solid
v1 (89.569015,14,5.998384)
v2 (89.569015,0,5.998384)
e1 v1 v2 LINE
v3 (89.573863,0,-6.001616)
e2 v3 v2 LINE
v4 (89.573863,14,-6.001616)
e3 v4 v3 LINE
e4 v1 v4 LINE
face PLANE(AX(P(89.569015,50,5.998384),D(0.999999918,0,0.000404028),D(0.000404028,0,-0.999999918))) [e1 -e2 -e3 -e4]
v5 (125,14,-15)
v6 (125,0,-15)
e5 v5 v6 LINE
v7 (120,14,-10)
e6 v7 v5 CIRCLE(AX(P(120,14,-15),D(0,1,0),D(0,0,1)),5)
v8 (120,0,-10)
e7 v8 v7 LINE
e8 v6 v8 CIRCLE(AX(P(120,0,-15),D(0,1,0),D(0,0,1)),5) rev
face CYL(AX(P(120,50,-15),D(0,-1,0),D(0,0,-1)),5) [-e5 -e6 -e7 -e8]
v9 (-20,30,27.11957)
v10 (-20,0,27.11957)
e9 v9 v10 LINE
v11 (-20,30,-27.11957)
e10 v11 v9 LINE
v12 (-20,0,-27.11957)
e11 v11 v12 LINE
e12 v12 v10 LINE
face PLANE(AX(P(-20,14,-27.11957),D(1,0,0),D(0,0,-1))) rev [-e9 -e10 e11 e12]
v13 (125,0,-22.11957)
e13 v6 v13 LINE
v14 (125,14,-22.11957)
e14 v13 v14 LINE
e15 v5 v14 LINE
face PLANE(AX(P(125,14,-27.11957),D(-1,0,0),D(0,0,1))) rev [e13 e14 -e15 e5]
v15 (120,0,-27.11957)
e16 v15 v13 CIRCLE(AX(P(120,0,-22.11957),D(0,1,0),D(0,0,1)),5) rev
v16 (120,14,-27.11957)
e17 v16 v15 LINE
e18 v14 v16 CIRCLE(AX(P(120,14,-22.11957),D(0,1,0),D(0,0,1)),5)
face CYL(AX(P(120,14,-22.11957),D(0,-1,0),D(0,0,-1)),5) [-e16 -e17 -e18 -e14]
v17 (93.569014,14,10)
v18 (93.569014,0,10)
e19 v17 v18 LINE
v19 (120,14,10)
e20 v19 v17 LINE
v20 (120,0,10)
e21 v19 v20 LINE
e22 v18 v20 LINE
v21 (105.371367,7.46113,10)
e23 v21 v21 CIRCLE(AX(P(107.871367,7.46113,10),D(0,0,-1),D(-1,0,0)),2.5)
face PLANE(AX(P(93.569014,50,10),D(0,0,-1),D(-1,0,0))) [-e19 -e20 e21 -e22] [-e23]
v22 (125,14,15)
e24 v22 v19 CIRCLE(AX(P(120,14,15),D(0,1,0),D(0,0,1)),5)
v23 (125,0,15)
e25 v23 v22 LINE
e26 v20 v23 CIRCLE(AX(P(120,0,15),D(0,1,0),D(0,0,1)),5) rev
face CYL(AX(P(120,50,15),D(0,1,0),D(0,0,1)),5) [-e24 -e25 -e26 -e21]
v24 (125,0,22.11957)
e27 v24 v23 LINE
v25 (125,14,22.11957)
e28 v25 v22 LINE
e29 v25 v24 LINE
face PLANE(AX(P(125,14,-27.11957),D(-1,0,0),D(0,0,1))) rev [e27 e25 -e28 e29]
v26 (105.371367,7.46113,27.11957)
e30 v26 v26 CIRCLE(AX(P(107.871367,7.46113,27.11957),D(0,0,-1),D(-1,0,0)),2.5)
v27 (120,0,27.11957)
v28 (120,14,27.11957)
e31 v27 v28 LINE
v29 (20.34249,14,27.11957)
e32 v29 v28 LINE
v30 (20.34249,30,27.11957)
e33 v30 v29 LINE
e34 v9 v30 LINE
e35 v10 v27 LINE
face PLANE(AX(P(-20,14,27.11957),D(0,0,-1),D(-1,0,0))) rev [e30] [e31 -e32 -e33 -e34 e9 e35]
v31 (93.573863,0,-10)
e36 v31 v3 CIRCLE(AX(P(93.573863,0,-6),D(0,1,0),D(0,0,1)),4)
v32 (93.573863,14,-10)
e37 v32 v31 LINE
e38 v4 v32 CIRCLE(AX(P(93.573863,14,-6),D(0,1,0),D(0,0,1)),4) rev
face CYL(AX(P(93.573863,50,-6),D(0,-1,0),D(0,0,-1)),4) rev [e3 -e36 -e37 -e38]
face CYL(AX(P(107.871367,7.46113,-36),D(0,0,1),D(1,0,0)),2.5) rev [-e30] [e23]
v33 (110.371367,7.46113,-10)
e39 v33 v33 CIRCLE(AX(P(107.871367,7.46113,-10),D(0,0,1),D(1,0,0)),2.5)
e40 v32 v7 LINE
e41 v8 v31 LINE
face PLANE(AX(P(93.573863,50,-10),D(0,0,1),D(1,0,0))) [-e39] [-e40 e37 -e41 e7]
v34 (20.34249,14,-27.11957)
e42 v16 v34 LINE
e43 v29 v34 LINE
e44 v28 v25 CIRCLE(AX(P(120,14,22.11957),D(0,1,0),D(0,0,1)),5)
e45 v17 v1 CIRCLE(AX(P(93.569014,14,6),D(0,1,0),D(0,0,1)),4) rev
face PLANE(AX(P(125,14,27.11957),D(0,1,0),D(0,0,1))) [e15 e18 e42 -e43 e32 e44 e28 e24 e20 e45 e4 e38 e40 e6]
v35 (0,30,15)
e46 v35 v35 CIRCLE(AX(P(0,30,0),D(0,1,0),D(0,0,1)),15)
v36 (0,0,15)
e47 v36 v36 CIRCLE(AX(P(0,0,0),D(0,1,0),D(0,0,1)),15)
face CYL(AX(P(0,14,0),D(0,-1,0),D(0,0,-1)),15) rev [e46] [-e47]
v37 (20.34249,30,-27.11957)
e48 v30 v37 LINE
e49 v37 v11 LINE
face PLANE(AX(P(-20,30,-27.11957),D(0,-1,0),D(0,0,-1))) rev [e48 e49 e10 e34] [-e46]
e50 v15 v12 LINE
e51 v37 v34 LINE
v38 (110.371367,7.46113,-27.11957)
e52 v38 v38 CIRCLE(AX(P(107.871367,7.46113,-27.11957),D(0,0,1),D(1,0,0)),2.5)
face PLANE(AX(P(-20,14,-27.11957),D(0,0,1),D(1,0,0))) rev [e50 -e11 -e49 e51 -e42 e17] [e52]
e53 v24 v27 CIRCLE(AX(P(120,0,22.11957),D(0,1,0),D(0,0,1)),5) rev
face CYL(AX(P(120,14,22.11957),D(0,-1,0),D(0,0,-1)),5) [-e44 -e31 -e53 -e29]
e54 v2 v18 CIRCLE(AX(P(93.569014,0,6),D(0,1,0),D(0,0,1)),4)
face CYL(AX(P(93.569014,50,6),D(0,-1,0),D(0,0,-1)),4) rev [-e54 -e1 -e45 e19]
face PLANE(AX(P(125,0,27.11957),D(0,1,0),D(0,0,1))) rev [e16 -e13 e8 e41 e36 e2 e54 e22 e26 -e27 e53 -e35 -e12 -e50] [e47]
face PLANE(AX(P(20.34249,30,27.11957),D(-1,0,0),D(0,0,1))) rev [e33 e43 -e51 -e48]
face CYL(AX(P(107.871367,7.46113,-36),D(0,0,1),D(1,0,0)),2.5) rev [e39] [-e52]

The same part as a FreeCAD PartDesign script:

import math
import FreeCAD as App
import Part
import Sketcher


def edges_at(feature, points):
    """Names of the edges that pass closest to the given points."""
    edges = feature.Shape.Edges
    near = lambda p: min(range(len(edges)), key=lambda i: edges[i].distToShape(Part.Vertex(*p))[0])
    return sorted({f"Edge{near(p) + 1}" for p in points})


def add_polygon(sketch, points):
    """Adds a closed chain of lines whose ends are joined by coincident constraints."""
    first, n = sketch.GeometryCount, len(points)
    for a, b in zip(points, points[1:] + points[:1]):
        sketch.addGeometry(Part.LineSegment(App.Vector(*a, 0), App.Vector(*b, 0)), False)
    for i in range(n):
        sketch.addConstraint(Sketcher.Constraint("Coincident", first + i, 2, first + (i + 1) % n, 1))

doc = App.newDocument("Part")
params = doc.addObject("Spreadsheet::Sheet", "Params")
for row, (alias, value) in enumerate([
    ("sketch1_diameter", "30 mm"),
    ("sketch1_width", "145 mm"),
    ("pad1_length", "14 mm"),
    ("sketch2_radius", "4 mm"),
    ("sketch2_height", "20 mm"),
    ("pocket1_length", "50 mm"),
    ("fillet_radius", "5 mm"),
    ("sketch3_diameter", "5 mm"),
    ("pocket2_length", "72 mm"),
    ("sketch4_diameter", "30 mm"),
    ("pad2_length", "16 mm"),
], start=1):
    params.set(f"A{row}", alias)
    params.set(f"B{row}", "=" + value)
    params.setAlias(f"B{row}", alias)

body = doc.addObject("PartDesign::Body", "Body")

# Sketch on XZ plane
sketch1 = body.newObject("Sketcher::SketchObject", "Sketch")
sketch1.AttachmentSupport = (doc.getObject("XZ_Plane"), [""])
sketch1.MapMode = "FlatFace"
add_polygon(sketch1, [(-20, -27), (-20, 27), (125, 27), (125, -27)])  # lines 0-3
sketch1.addGeometry(Part.Circle(App.Vector(0, 0, 0), App.Vector(0, 0, 1), 15), False)  # 4
sketch1.addConstraint([
    Sketcher.Constraint("Vertical", 0),
    Sketcher.Constraint("Horizontal", 1),
    Sketcher.Constraint("Vertical", 2),
    Sketcher.Constraint("Horizontal", 3),
    Sketcher.Constraint("Coincident", 4, 3, -1, 1),
    Sketcher.Constraint("Diameter", 4, 30.0),
    Sketcher.Constraint("DistanceX", 1, 1, 1, 2, 145.0),
    Sketcher.Constraint("DistanceX", 0, 2, -1, 1, 20.0),
    Sketcher.Constraint("DistanceY", 0, 1, 0, 2, 54.239141),
    Sketcher.Constraint("DistanceY", -1, 1, 0, 2, 27.11957),
])
sketch1.setExpression("Constraints[9]", "Params.sketch1_diameter")
sketch1.setExpression("Constraints[10]", "Params.sketch1_width")
pad1 = body.newObject("PartDesign::Pad", "Pad")
pad1.Profile = sketch1
pad1.setExpression("Length", "Params.pad1_length")
pad1.Reversed = True

# Sketch on XZ plane
sketch2 = body.newObject("Sketcher::SketchObject", "Sketch001")
sketch2.AttachmentSupport = (doc.getObject("XZ_Plane"), [""])
sketch2.MapMode = "FlatFace"
sketch2.addGeometry([
    Part.LineSegment(App.Vector(93.6, 10, 0), App.Vector(130.5, 10, 0)),  # 0
    Part.LineSegment(App.Vector(130.5, 10, 0), App.Vector(130.5, -10, 0)),  # 1
    Part.LineSegment(App.Vector(130.5, -10, 0), App.Vector(93.6, -10, 0)),  # 2
    Part.ArcOfCircle(Part.Circle(App.Vector(93.6, -6, 0), App.Vector(0, 0, 1), 4), math.radians(-180), math.radians(-90)),  # 3
    Part.LineSegment(App.Vector(89.6, -6, 0), App.Vector(89.6, 6, 0)),  # 4
    Part.ArcOfCircle(Part.Circle(App.Vector(93.6, 6, 0), App.Vector(0, 0, 1), 4), math.radians(90), math.radians(180)),  # 5
], False)
sketch2.addConstraint([
    Sketcher.Constraint("Coincident", 0, 2, 1, 1),
    Sketcher.Constraint("Coincident", 1, 2, 2, 1),
    Sketcher.Constraint("Tangent", 2, 2, 3, 2),
    Sketcher.Constraint("Tangent", 3, 1, 4, 1),
    Sketcher.Constraint("Tangent", 4, 2, 5, 2),
    Sketcher.Constraint("Tangent", 5, 1, 0, 1),
    Sketcher.Constraint("Horizontal", 0),
    Sketcher.Constraint("Vertical", 1),
    Sketcher.Constraint("Horizontal", 2),
    Sketcher.Constraint("Equal", 3, 5),
    Sketcher.Constraint("Radius", 3, 4.0),
    Sketcher.Constraint("DistanceY", 1, 2, 1, 1, 20.0),
    Sketcher.Constraint("DistanceY", 3, 3, -1, 1, 6.0),
    Sketcher.Constraint("DistanceX", 0, 1, 0, 2, 36.973546),
    Sketcher.Constraint("DistanceX", 2, 2, 2, 1, 36.968697),
    Sketcher.Constraint("DistanceX", -1, 1, 0, 2, 130.54256),
])
sketch2.setExpression("Constraints[10]", "Params.sketch2_radius")
sketch2.setExpression("Constraints[11]", "Params.sketch2_height")
pocket1 = body.newObject("PartDesign::Pocket", "Pocket")
pocket1.Profile = sketch2
pocket1.setExpression("Length", "Params.pocket1_length")
doc.recompute()

fillet = body.newObject("PartDesign::Fillet", "Fillet")
fillet.Base = (pocket1, edges_at(pocket1, [
    (125, 7, 10),
    (125, 7, -10),
    (125, 7, 27.12),
    (125, 7, -27.12),
]))
fillet.setExpression("Radius", "Params.fillet_radius")

# Sketch on XY plane
sketch3 = body.newObject("Sketcher::SketchObject", "Sketch002")
sketch3.AttachmentSupport = (doc.getObject("XY_Plane"), [""])
sketch3.MapMode = "FlatFace"
sketch3.addGeometry(Part.Circle(App.Vector(107.9, 7.5, 0), App.Vector(0, 0, 1), 2.5), False)
sketch3.addConstraint([
    Sketcher.Constraint("Diameter", 0, 5.0),
    Sketcher.Constraint("DistanceY", -1, 1, 0, 3, 7.46113),
    Sketcher.Constraint("DistanceX", -1, 1, 0, 3, 107.871367),
])
sketch3.setExpression("Constraints[0]", "Params.sketch3_diameter")
pocket2 = body.newObject("PartDesign::Pocket", "Pocket001")
pocket2.Profile = sketch3
pocket2.setExpression("Length", "Params.pocket2_length")
pocket2.Midplane = True

# Sketch on XZ plane
sketch4 = body.newObject("Sketcher::SketchObject", "Sketch003")
sketch4.AttachmentSupport = (doc.getObject("XZ_Plane"), [""])
sketch4.MapMode = "FlatFace"
sketch4.AttachmentOffset = App.Placement(App.Vector(0, 0, -14), App.Rotation())
add_polygon(sketch4, [(-20, -27), (-20, 27), (20, 27), (20, -27)])  # lines 0-3
sketch4.addGeometry(Part.Circle(App.Vector(0, 0, 0), App.Vector(0, 0, 1), 15), False)  # 4
sketch4.addConstraint([
    Sketcher.Constraint("Vertical", 0),
    Sketcher.Constraint("Horizontal", 1),
    Sketcher.Constraint("Vertical", 2),
    Sketcher.Constraint("Horizontal", 3),
    Sketcher.Constraint("Coincident", 4, 3, -1, 1),
    Sketcher.Constraint("Diameter", 4, 30.0),
    Sketcher.Constraint("DistanceX", 0, 2, -1, 1, 20.0),
    Sketcher.Constraint("DistanceX", 1, 1, 1, 2, 40.34249),
    Sketcher.Constraint("DistanceY", 0, 1, 0, 2, 54.239141),
    Sketcher.Constraint("DistanceY", -1, 1, 0, 2, 27.11957),
])
sketch4.setExpression("Constraints[9]", "Params.sketch4_diameter")
pad2 = body.newObject("PartDesign::Pad", "Pad001")
pad2.Profile = sketch4
pad2.setExpression("Length", "Params.pad2_length")
pad2.Reversed = True

doc.recompute()
